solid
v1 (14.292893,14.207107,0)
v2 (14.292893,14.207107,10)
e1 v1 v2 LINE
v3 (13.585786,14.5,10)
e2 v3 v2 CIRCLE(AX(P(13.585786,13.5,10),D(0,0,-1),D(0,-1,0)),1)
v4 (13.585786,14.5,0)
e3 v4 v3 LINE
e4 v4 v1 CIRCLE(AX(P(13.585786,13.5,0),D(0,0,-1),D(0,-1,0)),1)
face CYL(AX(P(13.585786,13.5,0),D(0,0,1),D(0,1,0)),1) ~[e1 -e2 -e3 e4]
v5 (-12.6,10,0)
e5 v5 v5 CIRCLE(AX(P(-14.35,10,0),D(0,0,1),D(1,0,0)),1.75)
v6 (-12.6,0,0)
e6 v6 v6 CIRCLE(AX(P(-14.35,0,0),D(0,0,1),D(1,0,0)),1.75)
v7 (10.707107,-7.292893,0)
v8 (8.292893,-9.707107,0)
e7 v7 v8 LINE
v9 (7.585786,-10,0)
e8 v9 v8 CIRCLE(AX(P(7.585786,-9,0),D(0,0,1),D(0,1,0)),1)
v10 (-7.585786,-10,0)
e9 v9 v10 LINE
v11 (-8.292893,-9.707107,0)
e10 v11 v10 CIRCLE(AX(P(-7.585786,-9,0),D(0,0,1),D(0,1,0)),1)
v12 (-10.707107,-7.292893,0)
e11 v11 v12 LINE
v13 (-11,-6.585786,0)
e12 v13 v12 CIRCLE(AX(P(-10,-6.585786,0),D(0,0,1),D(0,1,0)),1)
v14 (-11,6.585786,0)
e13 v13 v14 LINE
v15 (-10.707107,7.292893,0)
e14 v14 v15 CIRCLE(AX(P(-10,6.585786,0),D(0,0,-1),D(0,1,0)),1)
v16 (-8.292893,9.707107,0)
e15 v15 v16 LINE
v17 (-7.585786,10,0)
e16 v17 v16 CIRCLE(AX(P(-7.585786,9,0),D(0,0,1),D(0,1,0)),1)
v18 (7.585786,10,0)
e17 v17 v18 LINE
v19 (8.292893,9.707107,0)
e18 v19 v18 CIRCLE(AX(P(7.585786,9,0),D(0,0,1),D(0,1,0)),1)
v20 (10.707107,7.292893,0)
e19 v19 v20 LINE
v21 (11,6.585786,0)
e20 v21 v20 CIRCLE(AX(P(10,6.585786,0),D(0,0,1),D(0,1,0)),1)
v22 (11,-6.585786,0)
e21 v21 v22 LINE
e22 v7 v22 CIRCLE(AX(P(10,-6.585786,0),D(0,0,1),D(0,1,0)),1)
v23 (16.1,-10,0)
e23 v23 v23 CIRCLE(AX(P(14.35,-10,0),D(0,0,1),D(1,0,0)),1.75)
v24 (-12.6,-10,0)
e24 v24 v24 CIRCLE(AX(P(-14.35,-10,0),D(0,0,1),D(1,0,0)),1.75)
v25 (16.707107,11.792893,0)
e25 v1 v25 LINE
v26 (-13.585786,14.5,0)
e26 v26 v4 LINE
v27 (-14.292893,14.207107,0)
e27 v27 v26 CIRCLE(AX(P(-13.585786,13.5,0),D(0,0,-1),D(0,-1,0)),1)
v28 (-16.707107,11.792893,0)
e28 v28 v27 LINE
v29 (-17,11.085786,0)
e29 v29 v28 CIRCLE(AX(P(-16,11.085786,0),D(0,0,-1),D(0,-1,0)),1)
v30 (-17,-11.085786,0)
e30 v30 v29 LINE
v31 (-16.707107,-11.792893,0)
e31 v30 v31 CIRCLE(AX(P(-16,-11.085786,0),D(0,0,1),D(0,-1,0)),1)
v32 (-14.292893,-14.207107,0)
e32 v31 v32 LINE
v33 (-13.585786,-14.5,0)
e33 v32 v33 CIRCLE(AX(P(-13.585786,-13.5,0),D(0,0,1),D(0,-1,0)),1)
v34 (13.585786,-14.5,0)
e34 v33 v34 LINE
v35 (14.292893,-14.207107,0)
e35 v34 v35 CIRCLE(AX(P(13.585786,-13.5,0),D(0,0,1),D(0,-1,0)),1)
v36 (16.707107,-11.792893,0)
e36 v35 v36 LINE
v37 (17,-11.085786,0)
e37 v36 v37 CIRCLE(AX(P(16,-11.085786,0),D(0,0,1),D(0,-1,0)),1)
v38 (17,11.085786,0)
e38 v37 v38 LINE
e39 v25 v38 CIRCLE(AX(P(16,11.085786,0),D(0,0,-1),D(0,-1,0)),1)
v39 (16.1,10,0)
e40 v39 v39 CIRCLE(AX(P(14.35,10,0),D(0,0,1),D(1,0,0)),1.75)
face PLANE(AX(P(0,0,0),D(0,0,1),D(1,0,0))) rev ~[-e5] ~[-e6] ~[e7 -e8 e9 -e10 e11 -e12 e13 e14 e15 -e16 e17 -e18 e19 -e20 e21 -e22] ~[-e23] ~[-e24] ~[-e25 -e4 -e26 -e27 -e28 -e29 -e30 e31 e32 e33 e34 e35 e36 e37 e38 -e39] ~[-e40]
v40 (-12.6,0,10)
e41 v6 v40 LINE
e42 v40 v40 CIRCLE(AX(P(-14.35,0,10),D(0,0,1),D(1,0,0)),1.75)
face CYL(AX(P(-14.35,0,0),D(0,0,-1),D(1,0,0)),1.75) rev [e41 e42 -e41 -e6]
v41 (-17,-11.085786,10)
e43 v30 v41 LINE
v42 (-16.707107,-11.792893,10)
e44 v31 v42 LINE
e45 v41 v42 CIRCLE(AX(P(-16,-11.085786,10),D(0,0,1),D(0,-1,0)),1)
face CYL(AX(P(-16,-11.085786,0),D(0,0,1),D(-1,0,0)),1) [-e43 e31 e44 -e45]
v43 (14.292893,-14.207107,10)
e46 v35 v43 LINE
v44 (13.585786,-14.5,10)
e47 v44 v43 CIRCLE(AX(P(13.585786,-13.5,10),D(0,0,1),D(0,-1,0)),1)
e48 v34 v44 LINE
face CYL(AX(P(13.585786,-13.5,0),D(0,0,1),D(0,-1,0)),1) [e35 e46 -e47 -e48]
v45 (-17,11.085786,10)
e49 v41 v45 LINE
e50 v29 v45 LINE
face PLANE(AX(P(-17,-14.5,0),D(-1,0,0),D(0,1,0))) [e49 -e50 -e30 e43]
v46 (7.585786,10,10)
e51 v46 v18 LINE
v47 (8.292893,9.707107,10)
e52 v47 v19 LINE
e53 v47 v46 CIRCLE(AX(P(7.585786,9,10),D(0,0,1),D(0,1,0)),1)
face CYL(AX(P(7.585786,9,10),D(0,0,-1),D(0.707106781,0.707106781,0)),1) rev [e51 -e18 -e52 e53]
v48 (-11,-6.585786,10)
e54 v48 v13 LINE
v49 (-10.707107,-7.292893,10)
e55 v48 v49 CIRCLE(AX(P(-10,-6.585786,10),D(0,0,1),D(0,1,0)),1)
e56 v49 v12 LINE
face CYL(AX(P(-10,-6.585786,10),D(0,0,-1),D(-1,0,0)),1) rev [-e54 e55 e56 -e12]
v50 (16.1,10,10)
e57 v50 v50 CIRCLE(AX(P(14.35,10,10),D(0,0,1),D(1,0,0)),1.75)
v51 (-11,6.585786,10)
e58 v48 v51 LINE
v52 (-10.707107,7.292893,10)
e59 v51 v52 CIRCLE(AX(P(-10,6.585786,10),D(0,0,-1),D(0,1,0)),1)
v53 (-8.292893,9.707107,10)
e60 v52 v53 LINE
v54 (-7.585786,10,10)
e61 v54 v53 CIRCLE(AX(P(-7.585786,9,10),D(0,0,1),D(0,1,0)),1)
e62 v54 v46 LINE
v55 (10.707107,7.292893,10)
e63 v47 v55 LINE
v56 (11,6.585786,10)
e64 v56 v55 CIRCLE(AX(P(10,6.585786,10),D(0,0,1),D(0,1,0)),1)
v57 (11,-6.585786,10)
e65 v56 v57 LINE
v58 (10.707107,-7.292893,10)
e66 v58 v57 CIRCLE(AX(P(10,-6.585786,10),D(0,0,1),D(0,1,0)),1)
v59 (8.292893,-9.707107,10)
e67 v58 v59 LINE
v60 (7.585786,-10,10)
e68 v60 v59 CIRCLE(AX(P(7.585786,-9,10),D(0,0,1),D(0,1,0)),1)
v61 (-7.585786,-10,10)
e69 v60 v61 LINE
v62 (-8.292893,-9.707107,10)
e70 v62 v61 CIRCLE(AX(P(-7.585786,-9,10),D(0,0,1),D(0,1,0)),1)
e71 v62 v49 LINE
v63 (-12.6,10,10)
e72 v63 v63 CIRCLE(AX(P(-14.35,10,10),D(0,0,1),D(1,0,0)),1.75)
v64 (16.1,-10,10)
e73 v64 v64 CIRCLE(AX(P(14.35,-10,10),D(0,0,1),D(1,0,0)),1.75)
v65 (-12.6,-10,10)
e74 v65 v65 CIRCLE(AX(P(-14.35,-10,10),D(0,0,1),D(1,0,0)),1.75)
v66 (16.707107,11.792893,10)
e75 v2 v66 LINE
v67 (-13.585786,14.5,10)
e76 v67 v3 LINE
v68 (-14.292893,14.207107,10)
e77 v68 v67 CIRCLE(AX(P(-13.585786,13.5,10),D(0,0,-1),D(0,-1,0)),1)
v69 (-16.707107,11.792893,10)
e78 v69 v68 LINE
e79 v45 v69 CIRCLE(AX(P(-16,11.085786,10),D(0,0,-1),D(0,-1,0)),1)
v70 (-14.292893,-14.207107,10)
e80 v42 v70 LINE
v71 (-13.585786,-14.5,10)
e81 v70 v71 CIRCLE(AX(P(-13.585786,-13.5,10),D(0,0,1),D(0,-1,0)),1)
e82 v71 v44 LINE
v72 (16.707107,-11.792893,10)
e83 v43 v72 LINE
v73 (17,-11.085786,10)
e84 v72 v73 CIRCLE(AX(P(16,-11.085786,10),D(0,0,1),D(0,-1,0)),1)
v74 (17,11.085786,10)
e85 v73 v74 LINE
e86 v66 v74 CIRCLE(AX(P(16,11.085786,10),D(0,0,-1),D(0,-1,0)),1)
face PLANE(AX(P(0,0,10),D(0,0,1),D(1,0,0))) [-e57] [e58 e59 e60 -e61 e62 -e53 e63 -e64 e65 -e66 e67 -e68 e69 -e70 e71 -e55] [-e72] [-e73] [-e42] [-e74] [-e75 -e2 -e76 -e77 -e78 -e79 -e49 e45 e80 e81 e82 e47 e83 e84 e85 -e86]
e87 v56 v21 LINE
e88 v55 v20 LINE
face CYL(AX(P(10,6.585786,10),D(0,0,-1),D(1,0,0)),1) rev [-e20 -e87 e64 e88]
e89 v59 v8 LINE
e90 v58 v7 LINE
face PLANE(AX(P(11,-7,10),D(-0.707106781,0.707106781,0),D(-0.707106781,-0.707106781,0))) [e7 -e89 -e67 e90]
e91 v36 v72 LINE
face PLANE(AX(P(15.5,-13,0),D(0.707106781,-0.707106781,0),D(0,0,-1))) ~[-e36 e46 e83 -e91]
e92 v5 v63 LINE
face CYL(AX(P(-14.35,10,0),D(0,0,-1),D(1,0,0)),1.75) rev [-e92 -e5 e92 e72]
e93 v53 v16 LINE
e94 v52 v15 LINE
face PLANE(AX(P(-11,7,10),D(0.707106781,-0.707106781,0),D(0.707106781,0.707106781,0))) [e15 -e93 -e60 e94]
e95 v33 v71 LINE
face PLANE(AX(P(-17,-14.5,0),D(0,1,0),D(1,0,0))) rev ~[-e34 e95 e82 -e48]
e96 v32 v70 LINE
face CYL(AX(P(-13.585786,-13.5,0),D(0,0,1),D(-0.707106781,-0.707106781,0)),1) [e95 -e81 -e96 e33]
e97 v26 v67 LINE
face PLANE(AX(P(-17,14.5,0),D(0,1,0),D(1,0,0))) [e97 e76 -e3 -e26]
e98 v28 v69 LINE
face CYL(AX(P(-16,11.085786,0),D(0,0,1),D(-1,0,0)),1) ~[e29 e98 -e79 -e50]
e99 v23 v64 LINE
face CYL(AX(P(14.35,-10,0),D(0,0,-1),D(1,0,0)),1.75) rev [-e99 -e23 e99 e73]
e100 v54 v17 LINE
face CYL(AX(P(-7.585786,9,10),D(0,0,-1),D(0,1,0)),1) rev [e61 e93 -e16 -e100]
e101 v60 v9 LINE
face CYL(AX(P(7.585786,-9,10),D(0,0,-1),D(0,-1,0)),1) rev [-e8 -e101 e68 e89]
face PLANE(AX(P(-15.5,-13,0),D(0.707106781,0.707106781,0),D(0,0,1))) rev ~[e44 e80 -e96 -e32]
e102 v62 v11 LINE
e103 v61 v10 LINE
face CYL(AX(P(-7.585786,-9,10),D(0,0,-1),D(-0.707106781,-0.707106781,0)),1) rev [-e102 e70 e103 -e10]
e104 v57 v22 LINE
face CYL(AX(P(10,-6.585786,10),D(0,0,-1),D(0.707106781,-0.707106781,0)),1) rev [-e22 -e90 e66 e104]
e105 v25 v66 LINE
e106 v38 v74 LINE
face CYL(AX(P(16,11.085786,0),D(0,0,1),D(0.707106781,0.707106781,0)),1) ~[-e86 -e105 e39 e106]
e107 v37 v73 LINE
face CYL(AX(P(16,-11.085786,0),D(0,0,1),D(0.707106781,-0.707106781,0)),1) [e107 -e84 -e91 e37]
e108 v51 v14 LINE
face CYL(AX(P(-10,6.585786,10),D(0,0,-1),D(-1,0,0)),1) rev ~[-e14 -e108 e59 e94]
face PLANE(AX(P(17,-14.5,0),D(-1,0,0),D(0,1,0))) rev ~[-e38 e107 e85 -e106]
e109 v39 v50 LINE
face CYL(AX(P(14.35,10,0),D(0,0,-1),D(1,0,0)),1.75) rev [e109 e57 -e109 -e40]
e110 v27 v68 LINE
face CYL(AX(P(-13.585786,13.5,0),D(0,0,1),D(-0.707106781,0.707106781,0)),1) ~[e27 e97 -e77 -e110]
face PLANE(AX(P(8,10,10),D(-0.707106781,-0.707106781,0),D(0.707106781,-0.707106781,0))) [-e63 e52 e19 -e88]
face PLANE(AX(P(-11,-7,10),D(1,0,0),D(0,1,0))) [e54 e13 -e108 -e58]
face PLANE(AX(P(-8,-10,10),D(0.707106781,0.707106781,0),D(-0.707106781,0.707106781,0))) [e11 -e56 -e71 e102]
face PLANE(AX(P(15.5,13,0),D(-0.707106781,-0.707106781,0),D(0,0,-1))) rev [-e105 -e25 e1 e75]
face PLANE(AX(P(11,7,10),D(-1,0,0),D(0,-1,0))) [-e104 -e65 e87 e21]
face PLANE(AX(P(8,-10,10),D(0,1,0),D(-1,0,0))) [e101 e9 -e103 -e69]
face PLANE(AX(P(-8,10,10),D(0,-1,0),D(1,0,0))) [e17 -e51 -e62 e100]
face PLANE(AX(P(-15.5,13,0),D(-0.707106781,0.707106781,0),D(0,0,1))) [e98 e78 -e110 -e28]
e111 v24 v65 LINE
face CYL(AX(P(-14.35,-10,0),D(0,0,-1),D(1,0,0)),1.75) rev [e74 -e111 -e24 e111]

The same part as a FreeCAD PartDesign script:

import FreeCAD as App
import Part
import Sketcher


def edges_at(feature, points):
    """Names of the edges that pass closest to the given points."""
    edges = feature.Shape.Edges
    near = lambda p: min(range(len(edges)), key=lambda i: edges[i].distToShape(Part.Vertex(*p))[0])
    return sorted({f"Edge{near(p) + 1}" for p in points})

doc = App.newDocument("Part")
body = doc.addObject("PartDesign::Body", "Body")

sketch1 = body.newObject("Sketcher::SketchObject", "Sketch")
sketch1.AttachmentSupport = (doc.getObject("XY_Plane"), [""])
sketch1.MapMode = "FlatFace"
sketch1.addGeometry([
    Part.LineSegment(App.Vector(-17, 14.5, 0), App.Vector(-17, -14.5, 0)),
    Part.LineSegment(App.Vector(-17, -14.5, 0), App.Vector(17, -14.5, 0)),
    Part.LineSegment(App.Vector(17, -14.5, 0), App.Vector(17, 14.5, 0)),
    Part.LineSegment(App.Vector(17, 14.5, 0), App.Vector(-17, 14.5, 0)),
    Part.Circle(App.Vector(-14.3, -10, 0), App.Vector(0, 0, 1), 1.8),
    Part.Circle(App.Vector(14.3, -10, 0), App.Vector(0, 0, 1), 1.8),
    Part.Circle(App.Vector(-14.3, 0, 0), App.Vector(0, 0, 1), 1.8),
    Part.Circle(App.Vector(-14.3, 10, 0), App.Vector(0, 0, 1), 1.8),
    Part.Circle(App.Vector(14.3, 10, 0), App.Vector(0, 0, 1), 1.8),
], False)
sketch1.addConstraint([
    Sketcher.Constraint("Coincident", 0, 2, 1, 1),
    Sketcher.Constraint("Coincident", 1, 2, 2, 1),
    Sketcher.Constraint("Coincident", 2, 2, 3, 1),
    Sketcher.Constraint("Coincident", 3, 2, 0, 1),
    Sketcher.Constraint("Vertical", 0),
    Sketcher.Constraint("Horizontal", 1),
    Sketcher.Constraint("Vertical", 2),
    Sketcher.Constraint("Horizontal", 3),
    Sketcher.Constraint("Equal", 4, 5),
    Sketcher.Constraint("Equal", 5, 6),
    Sketcher.Constraint("Equal", 6, 7),
    Sketcher.Constraint("Equal", 7, 8),
    Sketcher.Constraint("Symmetric", 5, 3, 7, 3, -1, 1),
    Sketcher.Constraint("Symmetric", 4, 3, 8, 3, -1, 1),
    Sketcher.Constraint("Symmetric", 0, 2, 2, 2, -1, 1),
    Sketcher.Constraint("Symmetric", 4, 3, 5, 3, -2),
    Sketcher.Constraint("PointOnObject", 6, 3, -1),
    Sketcher.Constraint("Vertical", 4, 3, 6, 3),
    Sketcher.Constraint("Diameter", 4, 3.5),
    Sketcher.Constraint("DistanceX", 1, 1, 1, 2, 34.0),
    Sketcher.Constraint("DistanceY", 0, 2, 0, 1, 29.0),
    Sketcher.Constraint("DistanceY", 4, 3, -1, 1, 10.0),
    Sketcher.Constraint("DistanceX", 4, 3, 5, 3, 28.7),
])
pad1 = body.newObject("PartDesign::Pad", "Pad")
pad1.Profile = sketch1
pad1.Length = 10
doc.recompute()

chamfer = body.newObject("PartDesign::Chamfer", "Chamfer")
chamfer.Base = (pad1, edges_at(pad1, [
    (17, -14.5, 5),
    (-17, -14.5, 5),
    (-17, 14.5, 5),
    (17, 14.5, 5),
]))
chamfer.Size = 3

sketch2 = body.newObject("Sketcher::SketchObject", "Sketch001")
sketch2.AttachmentSupport = (doc.getObject("XY_Plane"), [""])
sketch2.MapMode = "FlatFace"
sketch2.AttachmentOffset = App.Placement(App.Vector(0, 0, 10), App.Rotation())
sketch2.addGeometry([
    Part.LineSegment(App.Vector(-8, 10, 0), App.Vector(-11, 7, 0)),
    Part.LineSegment(App.Vector(-11, 7, 0), App.Vector(-11, -7, 0)),
    Part.LineSegment(App.Vector(-11, -7, 0), App.Vector(-8, -10, 0)),
    Part.LineSegment(App.Vector(-8, -10, 0), App.Vector(8, -10, 0)),
    Part.LineSegment(App.Vector(8, -10, 0), App.Vector(11, -7, 0)),
    Part.LineSegment(App.Vector(11, -7, 0), App.Vector(11, 7, 0)),
    Part.LineSegment(App.Vector(11, 7, 0), App.Vector(8, 10, 0)),
    Part.LineSegment(App.Vector(8, 10, 0), App.Vector(-8, 10, 0)),
], False)
sketch2.addConstraint([
    Sketcher.Constraint("Coincident", 0, 2, 1, 1),
    Sketcher.Constraint("Coincident", 1, 2, 2, 1),
    Sketcher.Constraint("Coincident", 2, 2, 3, 1),
    Sketcher.Constraint("Coincident", 3, 2, 4, 1),
    Sketcher.Constraint("Coincident", 4, 2, 5, 1),
    Sketcher.Constraint("Coincident", 5, 2, 6, 1),
    Sketcher.Constraint("Coincident", 6, 2, 7, 1),
    Sketcher.Constraint("Coincident", 7, 2, 0, 1),
    Sketcher.Constraint("Vertical", 1),
    Sketcher.Constraint("Horizontal", 3),
    Sketcher.Constraint("Vertical", 5),
    Sketcher.Constraint("Horizontal", 7),
    Sketcher.Constraint("Symmetric", 0, 2, 4, 2, -1, 1),
    Sketcher.Constraint("Symmetric", 2, 2, 6, 2, -1, 1),
    Sketcher.Constraint("Perpendicular", 0, 2),
    Sketcher.Constraint("Perpendicular", 2, 4),
    Sketcher.Constraint("Perpendicular", 4, 6),
    Sketcher.Constraint("Horizontal", 1, 2, 4, 2),
    Sketcher.Constraint("Vertical", 3, 2, 6, 2),
    Sketcher.Constraint("DistanceX", 3, 1, 3, 2, 16.0),
    Sketcher.Constraint("DistanceY", 1, 2, 1, 1, 14.0),
    Sketcher.Constraint("DistanceX", 0, 2, -1, 1, 11.0),
])
pocket1 = body.newObject("PartDesign::Pocket", "Pocket")
pocket1.Profile = sketch2
pocket1.Type = "ThroughAll"
doc.recompute()

fillet = body.newObject("PartDesign::Fillet", "Fillet")
fillet.Base = (pocket1, edges_at(pocket1, [
    (17, 11.5, 5),
    (17, -11.5, 5),
    (-14, -14.5, 5),
    (14, -14.5, 5),
    (-14, 14.5, 5),
    (14, 14.5, 5),
    (-17, 11.5, 5),
    (-17, -11.5, 5),
    (-8, 10, 5),
    (8, 10, 5),
    (11, 7, 5),
    (11, -7, 5),
    (8, -10, 5),
    (-8, -10, 5),
    (-11, -7, 5),
    (-11, 7, 5),
]))
fillet.Radius = 1

doc.recompute()
